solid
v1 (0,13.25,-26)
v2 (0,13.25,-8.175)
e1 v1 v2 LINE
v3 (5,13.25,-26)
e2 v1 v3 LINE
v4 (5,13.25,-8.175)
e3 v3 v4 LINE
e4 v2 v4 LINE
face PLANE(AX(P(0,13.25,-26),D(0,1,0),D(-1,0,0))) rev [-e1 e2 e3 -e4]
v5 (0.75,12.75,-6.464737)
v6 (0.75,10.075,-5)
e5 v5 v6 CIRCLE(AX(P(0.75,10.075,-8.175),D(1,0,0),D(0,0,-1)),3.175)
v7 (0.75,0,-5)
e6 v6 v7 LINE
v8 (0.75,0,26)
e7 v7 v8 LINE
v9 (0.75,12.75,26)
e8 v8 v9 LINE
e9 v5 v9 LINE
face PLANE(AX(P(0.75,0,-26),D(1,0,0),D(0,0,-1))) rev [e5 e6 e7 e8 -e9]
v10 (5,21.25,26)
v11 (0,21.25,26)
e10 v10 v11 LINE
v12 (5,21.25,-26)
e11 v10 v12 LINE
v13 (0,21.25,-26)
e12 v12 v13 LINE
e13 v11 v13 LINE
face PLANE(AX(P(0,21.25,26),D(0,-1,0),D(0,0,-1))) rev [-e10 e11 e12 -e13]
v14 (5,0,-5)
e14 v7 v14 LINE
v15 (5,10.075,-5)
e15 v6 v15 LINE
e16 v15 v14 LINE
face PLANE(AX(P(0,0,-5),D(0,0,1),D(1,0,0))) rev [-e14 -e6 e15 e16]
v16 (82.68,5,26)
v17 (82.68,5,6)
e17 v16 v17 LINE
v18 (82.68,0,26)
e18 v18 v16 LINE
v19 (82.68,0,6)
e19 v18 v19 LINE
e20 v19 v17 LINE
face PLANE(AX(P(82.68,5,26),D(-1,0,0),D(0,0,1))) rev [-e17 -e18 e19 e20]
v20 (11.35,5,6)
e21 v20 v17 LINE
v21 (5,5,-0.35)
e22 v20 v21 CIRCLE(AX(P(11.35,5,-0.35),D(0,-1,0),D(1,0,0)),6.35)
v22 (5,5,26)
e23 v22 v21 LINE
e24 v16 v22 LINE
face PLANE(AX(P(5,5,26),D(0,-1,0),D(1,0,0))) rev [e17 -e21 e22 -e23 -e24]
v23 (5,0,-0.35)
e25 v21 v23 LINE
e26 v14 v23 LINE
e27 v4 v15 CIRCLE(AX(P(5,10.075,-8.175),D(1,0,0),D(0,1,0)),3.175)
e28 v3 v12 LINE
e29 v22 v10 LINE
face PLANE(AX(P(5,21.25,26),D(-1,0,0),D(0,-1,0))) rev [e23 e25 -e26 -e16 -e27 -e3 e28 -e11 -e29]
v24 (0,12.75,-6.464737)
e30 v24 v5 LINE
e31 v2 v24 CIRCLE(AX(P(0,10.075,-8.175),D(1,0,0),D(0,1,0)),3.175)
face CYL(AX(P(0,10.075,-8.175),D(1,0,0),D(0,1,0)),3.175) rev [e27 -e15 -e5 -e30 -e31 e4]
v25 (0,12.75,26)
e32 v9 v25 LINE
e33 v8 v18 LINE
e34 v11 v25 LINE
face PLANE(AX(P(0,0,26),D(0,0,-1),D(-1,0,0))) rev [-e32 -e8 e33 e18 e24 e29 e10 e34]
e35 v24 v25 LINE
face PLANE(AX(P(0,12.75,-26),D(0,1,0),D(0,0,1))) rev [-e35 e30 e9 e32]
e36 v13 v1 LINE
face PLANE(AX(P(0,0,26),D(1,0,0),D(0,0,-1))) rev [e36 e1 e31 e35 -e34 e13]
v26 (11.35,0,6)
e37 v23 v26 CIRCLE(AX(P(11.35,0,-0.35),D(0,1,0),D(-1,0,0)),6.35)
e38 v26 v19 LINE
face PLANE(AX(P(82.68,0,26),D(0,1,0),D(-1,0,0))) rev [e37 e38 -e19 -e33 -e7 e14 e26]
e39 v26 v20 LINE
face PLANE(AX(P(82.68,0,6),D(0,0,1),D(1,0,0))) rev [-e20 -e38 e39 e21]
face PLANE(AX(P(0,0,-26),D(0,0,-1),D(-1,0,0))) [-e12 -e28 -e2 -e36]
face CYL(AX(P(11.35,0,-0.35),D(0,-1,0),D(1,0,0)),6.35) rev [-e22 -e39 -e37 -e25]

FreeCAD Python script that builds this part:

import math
import FreeCAD as App
import Part
import Sketcher

V = App.Vector


def edges_at(feature, points):
    """Names of the edges that pass closest to the given points."""
    edges = feature.Shape.Edges
    near = lambda p: min(range(len(edges)), key=lambda i: edges[i].distToShape(Part.Vertex(*p))[0])
    return sorted({f"Edge{near(p) + 1}" for p in points})

doc = App.newDocument("Part")
params = doc.addObject("Spreadsheet::Sheet", "Params")
for row, (alias, value) in enumerate([
    ("sketch1_width", "5 mm"),
    ("sketch1_width2", "82.68 mm"),
    ("sketch1_height", "21.25 mm"),
    ("pad1_length", "52 mm"),
    ("sketch2_height", "32 mm"),
    ("sketch2_width", "77.68 mm"),
    ("fillet_radius", "6.35 mm"),
    ("sketch3_width", "0.75 mm"),
    ("sketch3_height", "12.75 mm"),
    ("sketch4_height", "21 mm"),
    ("sketch4_width", "13.25 mm"),
], start=1):
    params.set(f"A{row}", alias)
    params.set(f"B{row}", "=" + value)
    params.setAlias(f"B{row}", alias)

body = doc.addObject("PartDesign::Body", "Body")

# Sketch on XY plane
sketch1 = doc.addObject("Sketcher::SketchObject", "Sketch")
body.addObject(sketch1)
sketch1.AttachmentSupport = (doc.XY_Plane, [""])
sketch1.MapMode = "FlatFace"
sketch1.addGeometry([
    Part.LineSegment(V(0, 21, 0), V(0, 0, 0)),  # 0
    Part.LineSegment(V(0, 0, 0), V(83, 0, 0)),  # 1
    Part.LineSegment(V(83, 0, 0), V(83, 5, 0)),  # 2
    Part.LineSegment(V(83, 5, 0), V(5, 5, 0)),  # 3
    Part.LineSegment(V(5, 5, 0), V(5, 21, 0)),  # 4
    Part.LineSegment(V(5, 21, 0), V(0, 21, 0)),  # 5
], False)
sketch1.addConstraint([
    Sketcher.Constraint("Coincident", 0, 2, 1, 1),
    Sketcher.Constraint("Coincident", 1, 2, 2, 1),
    Sketcher.Constraint("Coincident", 2, 2, 3, 1),
    Sketcher.Constraint("Coincident", 3, 2, 4, 1),
    Sketcher.Constraint("Coincident", 4, 2, 5, 1),
    Sketcher.Constraint("Coincident", 5, 2, 0, 1),
    Sketcher.Constraint("Vertical", 0),
    Sketcher.Constraint("Horizontal", 1),
    Sketcher.Constraint("Vertical", 2),
    Sketcher.Constraint("Horizontal", 3),
    Sketcher.Constraint("Vertical", 4),
    Sketcher.Constraint("Horizontal", 5),
    Sketcher.Constraint("Coincident", 0, 2, -1, 1),
    Sketcher.Constraint("Equal", 5, 2),
    Sketcher.Constraint("DistanceX", 5, 2, 5, 1, 5.0),
    Sketcher.Constraint("DistanceX", 1, 1, 1, 2, 82.68),
    Sketcher.Constraint("DistanceY", 0, 2, 0, 1, 21.25),
])
sketch1.setExpression("Constraints[14]", "Params.sketch1_width")
sketch1.setExpression("Constraints[15]", "Params.sketch1_width2")
sketch1.setExpression("Constraints[16]", "Params.sketch1_height")
pad1 = doc.addObject("PartDesign::Pad", "Pad")
body.addObject(pad1)
pad1.Profile = sketch1
pad1.setExpression("Length", "Params.pad1_length")
pad1.Midplane = True

# Sketch on XZ plane
sketch2 = doc.addObject("Sketcher::SketchObject", "Sketch001")
body.addObject(sketch2)
sketch2.AttachmentSupport = (doc.XZ_Plane, [""])
sketch2.MapMode = "FlatFace"
sketch2.AttachmentOffset = App.Placement(V(0, 0, -5), App.Rotation())
sketch2.addGeometry([
    Part.LineSegment(V(5, -26, 0), V(5, 6, 0)),
    Part.LineSegment(V(5, 6, 0), V(83, 6, 0)),
    Part.LineSegment(V(83, 6, 0), V(83, -26, 0)),
    Part.LineSegment(V(83, -26, 0), V(5, -26, 0)),
], False)
sketch2.addConstraint([
    Sketcher.Constraint("Coincident", 0, 2, 1, 1),
    Sketcher.Constraint("Coincident", 1, 2, 2, 1),
    Sketcher.Constraint("Coincident", 2, 2, 3, 1),
    Sketcher.Constraint("Coincident", 3, 2, 0, 1),
    Sketcher.Constraint("Vertical", 0),
    Sketcher.Constraint("Horizontal", 1),
    Sketcher.Constraint("Vertical", 2),
    Sketcher.Constraint("Horizontal", 3),
    Sketcher.Constraint("DistanceY", 0, 1, 0, 2, 32.0),
    Sketcher.Constraint("DistanceX", -1, 1, 0, 2, 5.0),
    Sketcher.Constraint("DistanceY", -1, 1, 0, 2, 6.0),
    Sketcher.Constraint("DistanceX", 1, 1, 1, 2, 77.68),
])
sketch2.setExpression("Constraints[8]", "Params.sketch2_height")
sketch2.setExpression("Constraints[11]", "Params.sketch2_width")
pocket1 = doc.addObject("PartDesign::Pocket", "Pocket")
body.addObject(pocket1)
pocket1.Profile = sketch2
pocket1.Type = "ThroughAll"
pocket1.Reversed = True
doc.recompute()

fillet = doc.addObject("PartDesign::Fillet", "Fillet")
body.addObject(fillet)
fillet.Base = (pocket1, edges_at(pocket1, [(5, 2.5, 6)]))
fillet.setExpression("Radius", "Params.fillet_radius")

# Sketch on XY plane
sketch3 = doc.addObject("Sketcher::SketchObject", "Sketch002")
body.addObject(sketch3)
sketch3.AttachmentSupport = (doc.XY_Plane, [""])
sketch3.MapMode = "FlatFace"
sketch3.AttachmentOffset = App.Placement(V(0, 0, 26), App.Rotation())
sketch3.addGeometry([
    Part.LineSegment(V(0, 12.8, 0), V(0, 0, 0)),
    Part.LineSegment(V(0, 0, 0), V(0.8, 0, 0)),
    Part.LineSegment(V(0.8, 0, 0), V(0.8, 12.8, 0)),
    Part.LineSegment(V(0.8, 12.8, 0), V(0, 12.8, 0)),
], False)
sketch3.addConstraint([
    Sketcher.Constraint("Coincident", 0, 2, 1, 1),
    Sketcher.Constraint("Coincident", 1, 2, 2, 1),
    Sketcher.Constraint("Coincident", 2, 2, 3, 1),
    Sketcher.Constraint("Coincident", 3, 2, 0, 1),
    Sketcher.Constraint("Vertical", 0),
    Sketcher.Constraint("Horizontal", 1),
    Sketcher.Constraint("Vertical", 2),
    Sketcher.Constraint("Horizontal", 3),
    Sketcher.Constraint("Coincident", 0, 2, -1, 1),
    Sketcher.Constraint("DistanceX", 1, 1, 1, 2, 0.75),
    Sketcher.Constraint("DistanceY", 0, 2, 0, 1, 12.75),
])
sketch3.setExpression("Constraints[9]", "Params.sketch3_width")
sketch3.setExpression("Constraints[10]", "Params.sketch3_height")
pocket2 = doc.addObject("PartDesign::Pocket", "Pocket001")
body.addObject(pocket2)
pocket2.Profile = sketch3
pocket2.Type = "ThroughAll"

# Sketch on YZ plane
sketch4 = doc.addObject("Sketcher::SketchObject", "Sketch003")
body.addObject(sketch4)
sketch4.AttachmentSupport = (doc.YZ_Plane, [""])
sketch4.MapMode = "FlatFace"
sketch4.AttachmentOffset = App.Placement(V(0, 0, 5), App.Rotation())
sketch4.addGeometry([
    Part.LineSegment(V(0, -5, 0), V(0, -26, 0)),  # 0
    Part.LineSegment(V(0, -26, 0), V(13.2, -26, 0)),  # 1
    Part.LineSegment(V(13.2, -26, 0), V(13.2, -8.2, 0)),  # 2
    Part.ArcOfCircle(Part.Circle(V(10.1, -8.2, 0), V(0, 0, 1), 3.2), math.radians(0), math.radians(90)),  # 3
    Part.LineSegment(V(10.1, -5, 0), V(0, -5, 0)),  # 4
], False)
sketch4.addConstraint([
    Sketcher.Constraint("Coincident", 0, 2, 1, 1),
    Sketcher.Constraint("Coincident", 1, 2, 2, 1),
    Sketcher.Constraint("Tangent", 2, 2, 3, 1),
    Sketcher.Constraint("Tangent", 3, 2, 4, 1),
    Sketcher.Constraint("Coincident", 4, 2, 0, 1),
    Sketcher.Constraint("Vertical", 0),
    Sketcher.Constraint("Horizontal", 1),
    Sketcher.Constraint("Vertical", 2),
    Sketcher.Constraint("Horizontal", 4),
    Sketcher.Constraint("PointOnObject", 0, 2, -2),
    Sketcher.Constraint("DistanceY", 0, 2, 0, 1, 21.0),
    Sketcher.Constraint("DistanceY", 0, 2, -1, 1, 26.0),
    Sketcher.Constraint("Radius", 3, 3.175),
    Sketcher.Constraint("DistanceX", 1, 1, 1, 2, 13.25),
])
sketch4.setExpression("Constraints[10]", "Params.sketch4_height")
sketch4.setExpression("Constraints[13]", "Params.sketch4_width")
pocket3 = doc.addObject("PartDesign::Pocket", "Pocket002")
body.addObject(pocket3)
pocket3.Profile = sketch4
pocket3.Type = "ThroughAll"

doc.recompute()
